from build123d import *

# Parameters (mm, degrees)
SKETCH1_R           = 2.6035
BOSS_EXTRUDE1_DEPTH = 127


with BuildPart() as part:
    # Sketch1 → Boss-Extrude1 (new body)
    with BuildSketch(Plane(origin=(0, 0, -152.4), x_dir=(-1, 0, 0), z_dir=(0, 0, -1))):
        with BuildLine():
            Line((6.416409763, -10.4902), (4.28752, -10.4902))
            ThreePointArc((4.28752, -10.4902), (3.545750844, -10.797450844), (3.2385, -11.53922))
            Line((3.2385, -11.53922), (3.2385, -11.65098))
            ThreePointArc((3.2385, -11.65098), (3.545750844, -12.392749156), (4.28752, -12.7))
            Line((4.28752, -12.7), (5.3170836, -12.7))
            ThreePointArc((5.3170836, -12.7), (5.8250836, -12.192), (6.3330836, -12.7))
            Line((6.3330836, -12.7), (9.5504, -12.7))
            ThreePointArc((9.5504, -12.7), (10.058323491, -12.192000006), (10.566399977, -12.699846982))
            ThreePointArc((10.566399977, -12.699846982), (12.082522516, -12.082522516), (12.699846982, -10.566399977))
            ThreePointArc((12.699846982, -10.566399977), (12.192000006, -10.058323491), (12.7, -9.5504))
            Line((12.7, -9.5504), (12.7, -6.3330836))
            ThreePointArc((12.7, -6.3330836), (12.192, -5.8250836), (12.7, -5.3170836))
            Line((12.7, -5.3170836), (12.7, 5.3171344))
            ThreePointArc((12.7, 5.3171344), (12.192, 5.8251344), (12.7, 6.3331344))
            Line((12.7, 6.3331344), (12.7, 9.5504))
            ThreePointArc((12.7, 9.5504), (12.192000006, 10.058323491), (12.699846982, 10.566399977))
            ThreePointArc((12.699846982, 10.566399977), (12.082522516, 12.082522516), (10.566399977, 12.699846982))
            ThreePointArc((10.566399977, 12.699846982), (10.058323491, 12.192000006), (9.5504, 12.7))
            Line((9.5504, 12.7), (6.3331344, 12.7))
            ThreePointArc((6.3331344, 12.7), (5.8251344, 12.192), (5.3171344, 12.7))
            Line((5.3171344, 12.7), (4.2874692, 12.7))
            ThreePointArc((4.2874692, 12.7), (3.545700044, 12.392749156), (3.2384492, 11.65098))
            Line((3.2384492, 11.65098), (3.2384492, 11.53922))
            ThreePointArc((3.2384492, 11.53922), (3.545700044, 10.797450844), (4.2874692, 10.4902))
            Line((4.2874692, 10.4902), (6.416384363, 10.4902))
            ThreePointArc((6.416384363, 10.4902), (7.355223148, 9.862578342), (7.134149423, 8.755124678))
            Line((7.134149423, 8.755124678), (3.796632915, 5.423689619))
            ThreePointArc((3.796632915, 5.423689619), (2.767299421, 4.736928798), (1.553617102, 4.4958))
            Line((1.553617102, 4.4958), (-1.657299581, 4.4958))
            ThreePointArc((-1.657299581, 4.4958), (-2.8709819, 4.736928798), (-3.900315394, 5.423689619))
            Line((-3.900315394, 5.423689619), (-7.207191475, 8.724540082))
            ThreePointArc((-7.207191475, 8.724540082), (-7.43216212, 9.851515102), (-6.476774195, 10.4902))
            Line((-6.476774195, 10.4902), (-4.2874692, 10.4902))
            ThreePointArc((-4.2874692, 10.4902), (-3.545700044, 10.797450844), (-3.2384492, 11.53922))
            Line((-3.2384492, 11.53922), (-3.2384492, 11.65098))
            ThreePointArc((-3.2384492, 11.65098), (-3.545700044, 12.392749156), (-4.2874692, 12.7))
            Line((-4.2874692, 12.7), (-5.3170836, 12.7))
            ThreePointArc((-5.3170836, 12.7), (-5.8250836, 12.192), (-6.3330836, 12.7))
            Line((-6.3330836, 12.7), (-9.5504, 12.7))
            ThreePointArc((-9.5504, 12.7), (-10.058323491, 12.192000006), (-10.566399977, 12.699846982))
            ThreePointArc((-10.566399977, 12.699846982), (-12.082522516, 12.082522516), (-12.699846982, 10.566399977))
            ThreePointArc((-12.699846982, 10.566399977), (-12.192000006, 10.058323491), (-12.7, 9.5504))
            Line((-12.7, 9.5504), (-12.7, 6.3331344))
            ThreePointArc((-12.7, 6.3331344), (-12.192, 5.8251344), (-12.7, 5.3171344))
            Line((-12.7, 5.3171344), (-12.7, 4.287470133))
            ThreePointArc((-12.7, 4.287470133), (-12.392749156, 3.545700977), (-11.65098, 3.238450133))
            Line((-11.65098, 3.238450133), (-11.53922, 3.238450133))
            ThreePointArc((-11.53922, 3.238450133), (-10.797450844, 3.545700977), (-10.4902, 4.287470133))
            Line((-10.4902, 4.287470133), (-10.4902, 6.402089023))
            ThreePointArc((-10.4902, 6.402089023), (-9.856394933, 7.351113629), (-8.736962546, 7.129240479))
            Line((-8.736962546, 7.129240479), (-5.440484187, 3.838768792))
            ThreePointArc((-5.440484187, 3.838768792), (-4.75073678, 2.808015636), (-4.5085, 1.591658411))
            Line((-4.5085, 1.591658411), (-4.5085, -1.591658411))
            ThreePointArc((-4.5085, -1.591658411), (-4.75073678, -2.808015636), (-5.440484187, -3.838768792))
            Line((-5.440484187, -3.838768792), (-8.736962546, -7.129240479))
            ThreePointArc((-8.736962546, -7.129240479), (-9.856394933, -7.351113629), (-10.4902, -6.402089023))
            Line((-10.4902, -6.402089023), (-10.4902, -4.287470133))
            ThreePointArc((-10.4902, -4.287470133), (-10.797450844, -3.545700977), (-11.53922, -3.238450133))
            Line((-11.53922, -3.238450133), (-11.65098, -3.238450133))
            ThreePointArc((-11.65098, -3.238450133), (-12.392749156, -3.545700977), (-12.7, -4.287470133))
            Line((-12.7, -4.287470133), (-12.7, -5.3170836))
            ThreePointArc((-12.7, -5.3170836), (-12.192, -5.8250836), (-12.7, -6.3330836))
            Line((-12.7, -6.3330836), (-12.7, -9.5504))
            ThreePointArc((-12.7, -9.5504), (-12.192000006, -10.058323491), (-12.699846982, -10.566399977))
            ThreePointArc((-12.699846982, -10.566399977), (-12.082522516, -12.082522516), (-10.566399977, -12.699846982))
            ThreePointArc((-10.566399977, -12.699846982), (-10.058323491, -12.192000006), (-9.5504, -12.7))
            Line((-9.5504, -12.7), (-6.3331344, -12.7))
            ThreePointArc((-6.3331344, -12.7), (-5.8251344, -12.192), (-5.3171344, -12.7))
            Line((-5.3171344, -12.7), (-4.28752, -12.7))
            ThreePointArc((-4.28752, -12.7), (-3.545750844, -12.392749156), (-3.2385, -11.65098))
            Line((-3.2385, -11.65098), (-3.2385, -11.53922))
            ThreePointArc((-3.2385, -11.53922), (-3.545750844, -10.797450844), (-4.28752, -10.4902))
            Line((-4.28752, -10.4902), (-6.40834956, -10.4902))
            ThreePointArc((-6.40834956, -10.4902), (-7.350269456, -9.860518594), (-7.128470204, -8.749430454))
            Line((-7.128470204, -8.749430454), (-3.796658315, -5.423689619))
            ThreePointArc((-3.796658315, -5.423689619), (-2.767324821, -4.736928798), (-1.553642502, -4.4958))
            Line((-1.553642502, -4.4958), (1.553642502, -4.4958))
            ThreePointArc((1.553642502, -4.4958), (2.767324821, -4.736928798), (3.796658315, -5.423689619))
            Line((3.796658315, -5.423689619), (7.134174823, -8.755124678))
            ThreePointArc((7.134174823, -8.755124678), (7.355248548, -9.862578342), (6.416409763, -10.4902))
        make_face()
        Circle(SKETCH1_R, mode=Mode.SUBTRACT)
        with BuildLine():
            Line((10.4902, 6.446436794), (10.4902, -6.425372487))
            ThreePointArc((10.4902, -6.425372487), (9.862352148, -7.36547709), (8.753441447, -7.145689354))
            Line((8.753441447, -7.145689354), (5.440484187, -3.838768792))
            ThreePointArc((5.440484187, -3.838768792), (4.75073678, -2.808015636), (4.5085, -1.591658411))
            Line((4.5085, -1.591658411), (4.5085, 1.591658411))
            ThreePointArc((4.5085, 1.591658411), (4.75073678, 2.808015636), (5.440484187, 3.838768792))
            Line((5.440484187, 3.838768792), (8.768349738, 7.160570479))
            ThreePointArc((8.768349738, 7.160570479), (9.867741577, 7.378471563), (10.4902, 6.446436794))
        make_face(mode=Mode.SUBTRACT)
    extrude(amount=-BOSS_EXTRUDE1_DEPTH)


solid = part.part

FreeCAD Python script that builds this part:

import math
import FreeCAD as App
import Part
import Sketcher

V = App.Vector
Q = App.Units.Quantity

doc = App.newDocument("Part")
body = doc.addObject("PartDesign::Body", "Body")

# Sketch on XY plane
sketch1 = doc.addObject("Sketcher::SketchObject", "Sketch")
body.addObject(sketch1)
sketch1.AttachmentSupport = (doc.XY_Plane, [""])
sketch1.MapMode = "FlatFace"
sketch1.AttachmentOffset = App.Placement(V(0, 0, -6 * 25.4), App.Rotation())
sketch1.addGeometry(Part.LineSegment(V(-6.41641, -10.4902, 0), V(-4.28752, -10.4902, 0)), False)
sketch1.addGeometry(Part.ArcOfCircle(Part.Circle(V(-4.28752, -11.53922, 0), V(0, 0, 1), 1.04902), math.radians(0), math.radians(90)), False)
sketch1.addGeometry(Part.LineSegment(V(-3.2385, -11.53922, 0), V(-3.2385, -11.65098, 0)), False)
sketch1.addGeometry(Part.ArcOfCircle(Part.Circle(V(-4.28752, -11.65098, 0), V(0, 0, 1), 1.04902), math.radians(-90), math.radians(0)), False)
sketch1.addGeometry(Part.LineSegment(V(-4.28752, -12.7, 0), V(-5.317084, -12.7, 0)), False)
sketch1.addGeometry(Part.ArcOfCircle(Part.Circle(V(-5.825084, -12.7, 0), V(0, 0, 1), 0.508), math.radians(0), math.radians(180)), False)
sketch1.addGeometry(Part.LineSegment(V(-6.333084, -12.7, 0), V(-9.5504, -12.7, 0)), False)
sketch1.addGeometry(Part.ArcOfCircle(Part.Circle(V(-10.0584, -12.7, 0), V(0, 0, 1), 0.508), math.radians(0), math.radians(179.982742)), False)
sketch1.addGeometry(Part.ArcOfCircle(Part.Circle(V(-10.5918, -10.5918, 0), V(0, 0, 1), 2.1082), math.radians(179.309672), math.radians(270.690328)), False)
sketch1.addGeometry(Part.ArcOfCircle(Part.Circle(V(-12.7, -10.0584, 0), V(0, 0, 1), 0.508), math.radians(-89.982742), math.radians(90)), False)
sketch1.addGeometry(Part.LineSegment(V(-12.7, -9.5504, 0), V(-12.7, -6.333084, 0)), False)
sketch1.addGeometry(Part.ArcOfCircle(Part.Circle(V(-12.7, -5.825084, 0), V(0, 0, 1), 0.508), math.radians(-90), math.radians(90)), False)
sketch1.addGeometry(Part.LineSegment(V(-12.7, -5.317084, 0), V(-12.7, 5.317134, 0)), False)
sketch1.addGeometry(Part.ArcOfCircle(Part.Circle(V(-12.7, 5.825134, 0), V(0, 0, 1), 0.508), math.radians(-90), math.radians(90)), False)
sketch1.addGeometry(Part.LineSegment(V(-12.7, 6.333134, 0), V(-12.7, 9.5504, 0)), False)
sketch1.addGeometry(Part.ArcOfCircle(Part.Circle(V(-12.7, 10.0584, 0), V(0, 0, 1), 0.508), math.radians(-90), math.radians(89.982742)), False)
sketch1.addGeometry(Part.ArcOfCircle(Part.Circle(V(-10.5918, 10.5918, 0), V(0, 0, 1), 2.1082), math.radians(89.309672), math.radians(180.690328)), False)
sketch1.addGeometry(Part.ArcOfCircle(Part.Circle(V(-10.0584, 12.7, 0), V(0, 0, 1), 0.508), math.radians(-179.982742), math.radians(0)), False)
sketch1.addGeometry(Part.LineSegment(V(-9.5504, 12.7, 0), V(-6.333134, 12.7, 0)), False)
sketch1.addGeometry(Part.ArcOfCircle(Part.Circle(V(-5.825134, 12.7, 0), V(0, 0, 1), 0.508), math.radians(180), math.radians(360)), False)
sketch1.addGeometry(Part.LineSegment(V(-5.317134, 12.7, 0), V(-4.287469, 12.7, 0)), False)
sketch1.addGeometry(Part.ArcOfCircle(Part.Circle(V(-4.287469, 11.65098, 0), V(0, 0, 1), 1.04902), math.radians(0), math.radians(90)), False)
sketch1.addGeometry(Part.LineSegment(V(-3.238449, 11.65098, 0), V(-3.238449, 11.53922, 0)), False)
sketch1.addGeometry(Part.ArcOfCircle(Part.Circle(V(-4.287469, 11.53922, 0), V(0, 0, 1), 1.04902), math.radians(-90), math.radians(0)), False)
sketch1.addGeometry(Part.LineSegment(V(-4.287469, 10.4902, 0), V(-6.416384, 10.4902, 0)), False)
sketch1.addGeometry(Part.ArcOfCircle(Part.Circle(V(-6.416384, 9.4742, 0), V(0, 0, 1), 1.016), math.radians(90), math.radians(225.052248)), False)
sketch1.addGeometry(Part.LineSegment(V(-7.134149, 8.755125, 0), V(-3.796633, 5.42369, 0)), False)
sketch1.addGeometry(Part.ArcOfCircle(Part.Circle(V(-1.553617, 7.6708, 0), V(0, 0, 1), 3.175), math.radians(-134.947752), math.radians(-90)), False)
sketch1.addGeometry(Part.LineSegment(V(-1.553617, 4.4958, 0), V(1.6573, 4.4958, 0)), False)
sketch1.addGeometry(Part.ArcOfCircle(Part.Circle(V(1.6573, 7.6708, 0), V(0, 0, 1), 3.175), math.radians(-90), math.radians(-45.052248)), False)
sketch1.addGeometry(Part.LineSegment(V(3.900315, 5.42369, 0), V(7.207191, 8.72454, 0)), False)
sketch1.addGeometry(Part.ArcOfCircle(Part.Circle(V(6.476774, 9.456291, 0), V(0, 0, 1), 1.033909), math.radians(-45.052248), math.radians(90)), False)
sketch1.addGeometry(Part.LineSegment(V(6.476774, 10.4902, 0), V(4.287469, 10.4902, 0)), False)
sketch1.addGeometry(Part.ArcOfCircle(Part.Circle(V(4.287469, 11.53922, 0), V(0, 0, 1), 1.04902), math.radians(180), math.radians(270)), False)
sketch1.addGeometry(Part.LineSegment(V(3.238449, 11.53922, 0), V(3.238449, 11.65098, 0)), False)
sketch1.addGeometry(Part.ArcOfCircle(Part.Circle(V(4.287469, 11.65098, 0), V(0, 0, 1), 1.04902), math.radians(90), math.radians(180)), False)
sketch1.addGeometry(Part.LineSegment(V(4.287469, 12.7, 0), V(5.317084, 12.7, 0)), False)
sketch1.addGeometry(Part.ArcOfCircle(Part.Circle(V(5.825084, 12.7, 0), V(0, 0, 1), 0.508), math.radians(180), math.radians(360)), False)
sketch1.addGeometry(Part.LineSegment(V(6.333084, 12.7, 0), V(9.5504, 12.7, 0)), False)
sketch1.addGeometry(Part.ArcOfCircle(Part.Circle(V(10.0584, 12.7, 0), V(0, 0, 1), 0.508), math.radians(180), math.radians(359.982742)), False)
sketch1.addGeometry(Part.ArcOfCircle(Part.Circle(V(10.5918, 10.5918, 0), V(0, 0, 1), 2.1082), math.radians(-0.690328), math.radians(90.690328)), False)
sketch1.addGeometry(Part.ArcOfCircle(Part.Circle(V(12.7, 10.0584, 0), V(0, 0, 1), 0.508), math.radians(90.017258), math.radians(270)), False)
sketch1.addGeometry(Part.LineSegment(V(12.7, 9.5504, 0), V(12.7, 6.333134, 0)), False)
sketch1.addGeometry(Part.ArcOfCircle(Part.Circle(V(12.7, 5.825134, 0), V(0, 0, 1), 0.508), math.radians(90), math.radians(270)), False)
sketch1.addGeometry(Part.LineSegment(V(12.7, 5.317134, 0), V(12.7, 4.28747, 0)), False)
sketch1.addGeometry(Part.ArcOfCircle(Part.Circle(V(11.65098, 4.28747, 0), V(0, 0, 1), 1.04902), math.radians(-90), math.radians(0)), False)
sketch1.addGeometry(Part.LineSegment(V(11.65098, 3.23845, 0), V(11.53922, 3.23845, 0)), False)
sketch1.addGeometry(Part.ArcOfCircle(Part.Circle(V(11.53922, 4.28747, 0), V(0, 0, 1), 1.04902), math.radians(180), math.radians(270)), False)
sketch1.addGeometry(Part.LineSegment(V(10.4902, 4.28747, 0), V(10.4902, 6.402089, 0)), False)
sketch1.addGeometry(Part.ArcOfCircle(Part.Circle(V(9.462789, 6.402089, 0), V(0, 0, 1), 1.027411), math.radians(0), math.radians(134.947752)), False)
sketch1.addGeometry(Part.LineSegment(V(8.736963, 7.12924, 0), V(5.440484, 3.838769, 0)), False)
sketch1.addGeometry(Part.ArcOfCircle(Part.Circle(V(7.6835, 1.591658, 0), V(0, 0, 1), 3.175), math.radians(134.947752), math.radians(180)), False)
sketch1.addGeometry(Part.LineSegment(V(4.5085, 1.591658, 0), V(4.5085, -1.591658, 0)), False)
sketch1.addGeometry(Part.ArcOfCircle(Part.Circle(V(7.6835, -1.591658, 0), V(0, 0, 1), 3.175), math.radians(180), math.radians(225.052248)), False)
sketch1.addGeometry(Part.LineSegment(V(5.440484, -3.838769, 0), V(8.736963, -7.12924, 0)), False)
sketch1.addGeometry(Part.ArcOfCircle(Part.Circle(V(9.462789, -6.402089, 0), V(0, 0, 1), 1.027411), math.radians(-134.947752), math.radians(0)), False)
sketch1.addGeometry(Part.LineSegment(V(10.4902, -6.402089, 0), V(10.4902, -4.28747, 0)), False)
sketch1.addGeometry(Part.ArcOfCircle(Part.Circle(V(11.53922, -4.28747, 0), V(0, 0, 1), 1.04902), math.radians(90), math.radians(180)), False)
sketch1.addGeometry(Part.LineSegment(V(11.53922, -3.23845, 0), V(11.65098, -3.23845, 0)), False)
sketch1.addGeometry(Part.ArcOfCircle(Part.Circle(V(11.65098, -4.28747, 0), V(0, 0, 1), 1.04902), math.radians(0), math.radians(90)), False)
sketch1.addGeometry(Part.LineSegment(V(12.7, -4.28747, 0), V(12.7, -5.317084, 0)), False)
sketch1.addGeometry(Part.ArcOfCircle(Part.Circle(V(12.7, -5.825084, 0), V(0, 0, 1), 0.508), math.radians(90), math.radians(270)), False)
sketch1.addGeometry(Part.LineSegment(V(12.7, -6.333084, 0), V(12.7, -9.5504, 0)), False)
sketch1.addGeometry(Part.ArcOfCircle(Part.Circle(V(12.7, -10.0584, 0), V(0, 0, 1), 0.508), math.radians(90), math.radians(269.982742)), False)
sketch1.addGeometry(Part.ArcOfCircle(Part.Circle(V(10.5918, -10.5918, 0), V(0, 0, 1), 2.1082), math.radians(-90.690328), math.radians(0.690328)), False)
sketch1.addGeometry(Part.ArcOfCircle(Part.Circle(V(10.0584, -12.7, 0), V(0, 0, 1), 0.508), math.radians(0.017258), math.radians(180)), False)
sketch1.addGeometry(Part.LineSegment(V(9.5504, -12.7, 0), V(6.333134, -12.7, 0)), False)
sketch1.addGeometry(Part.ArcOfCircle(Part.Circle(V(5.825134, -12.7, 0), V(0, 0, 1), 0.508), math.radians(0), math.radians(180)), False)
sketch1.addGeometry(Part.LineSegment(V(5.317134, -12.7, 0), V(4.28752, -12.7, 0)), False)
sketch1.addGeometry(Part.ArcOfCircle(Part.Circle(V(4.28752, -11.65098, 0), V(0, 0, 1), 1.04902), math.radians(180), math.radians(270)), False)
sketch1.addGeometry(Part.LineSegment(V(3.2385, -11.65098, 0), V(3.2385, -11.53922, 0)), False)
sketch1.addGeometry(Part.ArcOfCircle(Part.Circle(V(4.28752, -11.53922, 0), V(0, 0, 1), 1.04902), math.radians(90), math.radians(180)), False)
sketch1.addGeometry(Part.LineSegment(V(4.28752, -10.4902, 0), V(6.40835, -10.4902, 0)), False)
sketch1.addGeometry(Part.ArcOfCircle(Part.Circle(V(6.40835, -9.470866, 0), V(0, 0, 1), 1.019334), math.radians(-90), math.radians(45.052248)), False)
sketch1.addGeometry(Part.LineSegment(V(7.12847, -8.74943, 0), V(3.796658, -5.42369, 0)), False)
sketch1.addGeometry(Part.ArcOfCircle(Part.Circle(V(1.553643, -7.6708, 0), V(0, 0, 1), 3.175), math.radians(45.052248), math.radians(90)), False)
sketch1.addGeometry(Part.LineSegment(V(1.553643, -4.4958, 0), V(-1.553643, -4.4958, 0)), False)
sketch1.addGeometry(Part.ArcOfCircle(Part.Circle(V(-1.553643, -7.6708, 0), V(0, 0, 1), 3.175), math.radians(90), math.radians(134.947752)), False)
sketch1.addGeometry(Part.LineSegment(V(-3.796658, -5.42369, 0), V(-7.134175, -8.755125, 0)), False)
sketch1.addGeometry(Part.ArcOfCircle(Part.Circle(V(-6.41641, -9.4742, 0), V(0, 0, 1), 1.016), math.radians(134.947752), math.radians(270)), False)
sketch1.addGeometry(Part.Circle(V(0, 0, 0), V(0, 0, 1), 2.6035), False)
sketch1.addGeometry(Part.ArcOfCircle(Part.Circle(V(-9.481182, 6.446437, 0), V(0, 0, 1), 1.009018), math.radians(45.052248), math.radians(180)), False)
sketch1.addGeometry(Part.LineSegment(V(-10.4902, 6.446437, 0), V(-10.4902, -6.425372, 0)), False)
sketch1.addGeometry(Part.ArcOfCircle(Part.Circle(V(-9.472446, -6.425372, 0), V(0, 0, 1), 1.017754), math.radians(180), math.radians(314.947752)), False)
sketch1.addGeometry(Part.LineSegment(V(-8.753441, -7.145689, 0), V(-5.440484, -3.838769, 0)), False)
sketch1.addGeometry(Part.ArcOfCircle(Part.Circle(V(-7.6835, -1.591658, 0), V(0, 0, 1), 3.175), math.radians(-45.052248), math.radians(0)), False)
sketch1.addGeometry(Part.LineSegment(V(-4.5085, -1.591658, 0), V(-4.5085, 1.591658, 0)), False)
sketch1.addGeometry(Part.ArcOfCircle(Part.Circle(V(-7.6835, 1.591658, 0), V(0, 0, 1), 3.175), math.radians(0), math.radians(45.052248)), False)
sketch1.addGeometry(Part.LineSegment(V(-5.440484, 3.838769, 0), V(-8.76835, 7.16057, 0)), False)
sketch1.addConstraint(Sketcher.Constraint("Tangent", 0, 2, 1, 2))
sketch1.addConstraint(Sketcher.Constraint("Tangent", 1, 1, 2, 1))
sketch1.addConstraint(Sketcher.Constraint("Tangent", 2, 2, 3, 2))
sketch1.addConstraint(Sketcher.Constraint("Tangent", 3, 1, 4, 1))
sketch1.addConstraint(Sketcher.Constraint("Coincident", 4, 2, 5, 1))
sketch1.addConstraint(Sketcher.Constraint("Coincident", 5, 2, 6, 1))
sketch1.addConstraint(Sketcher.Constraint("Coincident", 6, 2, 7, 1))
sketch1.addConstraint(Sketcher.Constraint("Coincident", 7, 2, 8, 2))
sketch1.addConstraint(Sketcher.Constraint("Coincident", 8, 1, 9, 1))
sketch1.addConstraint(Sketcher.Constraint("Coincident", 9, 2, 10, 1))
sketch1.addConstraint(Sketcher.Constraint("Coincident", 10, 2, 11, 1))
sketch1.addConstraint(Sketcher.Constraint("Coincident", 11, 2, 12, 1))
sketch1.addConstraint(Sketcher.Constraint("Coincident", 12, 2, 13, 1))
sketch1.addConstraint(Sketcher.Constraint("Coincident", 13, 2, 14, 1))
sketch1.addConstraint(Sketcher.Constraint("Coincident", 14, 2, 15, 1))
sketch1.addConstraint(Sketcher.Constraint("Coincident", 15, 2, 16, 2))
sketch1.addConstraint(Sketcher.Constraint("Coincident", 16, 1, 17, 1))
sketch1.addConstraint(Sketcher.Constraint("Coincident", 17, 2, 18, 1))
sketch1.addConstraint(Sketcher.Constraint("Coincident", 18, 2, 19, 1))
sketch1.addConstraint(Sketcher.Constraint("Coincident", 19, 2, 20, 1))
sketch1.addConstraint(Sketcher.Constraint("Tangent", 20, 2, 21, 2))
sketch1.addConstraint(Sketcher.Constraint("Tangent", 21, 1, 22, 1))
sketch1.addConstraint(Sketcher.Constraint("Tangent", 22, 2, 23, 2))
sketch1.addConstraint(Sketcher.Constraint("Tangent", 23, 1, 24, 1))
sketch1.addConstraint(Sketcher.Constraint("Tangent", 24, 2, 25, 1))
sketch1.addConstraint(Sketcher.Constraint("Tangent", 25, 2, 26, 1))
sketch1.addConstraint(Sketcher.Constraint("Tangent", 26, 2, 27, 1))
sketch1.addConstraint(Sketcher.Constraint("Tangent", 27, 2, 28, 1))
sketch1.addConstraint(Sketcher.Constraint("Tangent", 28, 2, 29, 1))
sketch1.addConstraint(Sketcher.Constraint("Tangent", 29, 2, 30, 1))
sketch1.addConstraint(Sketcher.Constraint("Tangent", 30, 2, 31, 1))
sketch1.addConstraint(Sketcher.Constraint("Tangent", 31, 2, 32, 1))
sketch1.addConstraint(Sketcher.Constraint("Tangent", 32, 2, 33, 2))
sketch1.addConstraint(Sketcher.Constraint("Tangent", 33, 1, 34, 1))
sketch1.addConstraint(Sketcher.Constraint("Tangent", 34, 2, 35, 2))
sketch1.addConstraint(Sketcher.Constraint("Tangent", 35, 1, 36, 1))
sketch1.addConstraint(Sketcher.Constraint("Coincident", 36, 2, 37, 1))
sketch1.addConstraint(Sketcher.Constraint("Coincident", 37, 2, 38, 1))
sketch1.addConstraint(Sketcher.Constraint("Coincident", 38, 2, 39, 1))
sketch1.addConstraint(Sketcher.Constraint("Coincident", 39, 2, 40, 2))
sketch1.addConstraint(Sketcher.Constraint("Coincident", 40, 1, 41, 1))
sketch1.addConstraint(Sketcher.Constraint("Coincident", 41, 2, 42, 1))
sketch1.addConstraint(Sketcher.Constraint("Coincident", 42, 2, 43, 1))
sketch1.addConstraint(Sketcher.Constraint("Coincident", 43, 2, 44, 1))
sketch1.addConstraint(Sketcher.Constraint("Tangent", 44, 2, 45, 2))
sketch1.addConstraint(Sketcher.Constraint("Tangent", 45, 1, 46, 1))
sketch1.addConstraint(Sketcher.Constraint("Tangent", 46, 2, 47, 2))
sketch1.addConstraint(Sketcher.Constraint("Tangent", 47, 1, 48, 1))
sketch1.addConstraint(Sketcher.Constraint("Tangent", 48, 2, 49, 1))
sketch1.addConstraint(Sketcher.Constraint("Tangent", 49, 2, 50, 1))
sketch1.addConstraint(Sketcher.Constraint("Tangent", 50, 2, 51, 1))
sketch1.addConstraint(Sketcher.Constraint("Tangent", 51, 2, 52, 1))
sketch1.addConstraint(Sketcher.Constraint("Tangent", 52, 2, 53, 1))
sketch1.addConstraint(Sketcher.Constraint("Tangent", 53, 2, 54, 1))
sketch1.addConstraint(Sketcher.Constraint("Tangent", 54, 2, 55, 1))
sketch1.addConstraint(Sketcher.Constraint("Tangent", 55, 2, 56, 1))
sketch1.addConstraint(Sketcher.Constraint("Tangent", 56, 2, 57, 2))
sketch1.addConstraint(Sketcher.Constraint("Tangent", 57, 1, 58, 1))
sketch1.addConstraint(Sketcher.Constraint("Tangent", 58, 2, 59, 2))
sketch1.addConstraint(Sketcher.Constraint("Tangent", 59, 1, 60, 1))
sketch1.addConstraint(Sketcher.Constraint("Coincident", 60, 2, 61, 1))
sketch1.addConstraint(Sketcher.Constraint("Coincident", 61, 2, 62, 1))
sketch1.addConstraint(Sketcher.Constraint("Coincident", 62, 2, 63, 1))
sketch1.addConstraint(Sketcher.Constraint("Coincident", 63, 2, 64, 2))
sketch1.addConstraint(Sketcher.Constraint("Coincident", 64, 1, 65, 1))
sketch1.addConstraint(Sketcher.Constraint("Coincident", 65, 2, 66, 1))
sketch1.addConstraint(Sketcher.Constraint("Coincident", 66, 2, 67, 1))
sketch1.addConstraint(Sketcher.Constraint("Coincident", 67, 2, 68, 1))
sketch1.addConstraint(Sketcher.Constraint("Tangent", 68, 2, 69, 2))
sketch1.addConstraint(Sketcher.Constraint("Tangent", 69, 1, 70, 1))
sketch1.addConstraint(Sketcher.Constraint("Tangent", 70, 2, 71, 2))
sketch1.addConstraint(Sketcher.Constraint("Tangent", 71, 1, 72, 1))
sketch1.addConstraint(Sketcher.Constraint("Tangent", 72, 2, 73, 1))
sketch1.addConstraint(Sketcher.Constraint("Tangent", 73, 2, 74, 1))
sketch1.addConstraint(Sketcher.Constraint("Tangent", 74, 2, 75, 1))
sketch1.addConstraint(Sketcher.Constraint("Tangent", 75, 2, 76, 1))
sketch1.addConstraint(Sketcher.Constraint("Tangent", 76, 2, 77, 1))
sketch1.addConstraint(Sketcher.Constraint("Tangent", 77, 2, 78, 1))
sketch1.addConstraint(Sketcher.Constraint("Tangent", 78, 2, 79, 1))
sketch1.addConstraint(Sketcher.Constraint("Tangent", 79, 2, 0, 1))
sketch1.addConstraint(Sketcher.Constraint("Tangent", 81, 2, 82, 1))
sketch1.addConstraint(Sketcher.Constraint("Tangent", 82, 2, 83, 1))
sketch1.addConstraint(Sketcher.Constraint("Tangent", 83, 2, 84, 1))
sketch1.addConstraint(Sketcher.Constraint("Tangent", 84, 2, 85, 1))
sketch1.addConstraint(Sketcher.Constraint("Tangent", 85, 2, 86, 1))
sketch1.addConstraint(Sketcher.Constraint("Tangent", 86, 2, 87, 1))
sketch1.addConstraint(Sketcher.Constraint("Tangent", 87, 2, 88, 1))
sketch1.addConstraint(Sketcher.Constraint("Tangent", 88, 2, 81, 1))
sketch1.addConstraint(Sketcher.Constraint("Horizontal", 0))
sketch1.addConstraint(Sketcher.Constraint("Vertical", 2))
sketch1.addConstraint(Sketcher.Constraint("Horizontal", 4))
sketch1.addConstraint(Sketcher.Constraint("Horizontal", 6))
sketch1.addConstraint(Sketcher.Constraint("Vertical", 10))
sketch1.addConstraint(Sketcher.Constraint("Vertical", 12))
sketch1.addConstraint(Sketcher.Constraint("Vertical", 14))
sketch1.addConstraint(Sketcher.Constraint("Horizontal", 18))
sketch1.addConstraint(Sketcher.Constraint("Horizontal", 20))
sketch1.addConstraint(Sketcher.Constraint("Vertical", 22))
sketch1.addConstraint(Sketcher.Constraint("Horizontal", 24))
sketch1.addConstraint(Sketcher.Constraint("Horizontal", 28))
sketch1.addConstraint(Sketcher.Constraint("Horizontal", 32))
sketch1.addConstraint(Sketcher.Constraint("Vertical", 34))
sketch1.addConstraint(Sketcher.Constraint("Horizontal", 36))
sketch1.addConstraint(Sketcher.Constraint("Horizontal", 38))
sketch1.addConstraint(Sketcher.Constraint("Vertical", 42))
sketch1.addConstraint(Sketcher.Constraint("Vertical", 44))
sketch1.addConstraint(Sketcher.Constraint("Horizontal", 46))
sketch1.addConstraint(Sketcher.Constraint("Vertical", 48))
sketch1.addConstraint(Sketcher.Constraint("Vertical", 52))
sketch1.addConstraint(Sketcher.Constraint("Vertical", 56))
sketch1.addConstraint(Sketcher.Constraint("Horizontal", 58))
sketch1.addConstraint(Sketcher.Constraint("Vertical", 60))
sketch1.addConstraint(Sketcher.Constraint("Vertical", 62))
sketch1.addConstraint(Sketcher.Constraint("Horizontal", 66))
sketch1.addConstraint(Sketcher.Constraint("Horizontal", 68))
sketch1.addConstraint(Sketcher.Constraint("Vertical", 70))
sketch1.addConstraint(Sketcher.Constraint("Horizontal", 72))
sketch1.addConstraint(Sketcher.Constraint("Horizontal", 76))
sketch1.addConstraint(Sketcher.Constraint("Vertical", 82))
sketch1.addConstraint(Sketcher.Constraint("Vertical", 86))
sketch1.addConstraint(Sketcher.Constraint("Coincident", 80, 3, -1, 1))
sketch1.addConstraint(Sketcher.Constraint("Equal", 1, 3))
sketch1.addConstraint(Sketcher.Constraint("Equal", 5, 7))
sketch1.addConstraint(Sketcher.Constraint("Equal", 7, 9))
sketch1.addConstraint(Sketcher.Constraint("Equal", 9, 11))
sketch1.addConstraint(Sketcher.Constraint("Equal", 11, 13))
sketch1.addConstraint(Sketcher.Constraint("Equal", 13, 15))
sketch1.addConstraint(Sketcher.Constraint("Equal", 8, 16))
sketch1.addConstraint(Sketcher.Constraint("Equal", 15, 17))
sketch1.addConstraint(Sketcher.Constraint("Equal", 17, 19))
sketch1.addConstraint(Sketcher.Constraint("Equal", 3, 21))
sketch1.addConstraint(Sketcher.Constraint("Equal", 21, 23))
sketch1.addConstraint(Sketcher.Constraint("Equal", 27, 29))
sketch1.addConstraint(Sketcher.Constraint("Equal", 23, 33))
sketch1.addConstraint(Sketcher.Constraint("Equal", 33, 35))
sketch1.addConstraint(Sketcher.Constraint("Equal", 19, 37))
sketch1.addConstraint(Sketcher.Constraint("Equal", 37, 39))
sketch1.addConstraint(Sketcher.Constraint("Equal", 16, 40))
sketch1.addConstraint(Sketcher.Constraint("Equal", 39, 41))
sketch1.addConstraint(Sketcher.Constraint("Equal", 41, 43))
sketch1.addConstraint(Sketcher.Constraint("Equal", 35, 45))
sketch1.addConstraint(Sketcher.Constraint("Equal", 45, 47))
sketch1.addConstraint(Sketcher.Constraint("Equal", 29, 51))
sketch1.addConstraint(Sketcher.Constraint("Equal", 51, 53))
sketch1.addConstraint(Sketcher.Constraint("Equal", 49, 55))
sketch1.addConstraint(Sketcher.Constraint("Equal", 47, 57))
sketch1.addConstraint(Sketcher.Constraint("Equal", 57, 59))
sketch1.addConstraint(Sketcher.Constraint("Equal", 43, 61))
sketch1.addConstraint(Sketcher.Constraint("Equal", 61, 63))
sketch1.addConstraint(Sketcher.Constraint("Equal", 40, 64))
sketch1.addConstraint(Sketcher.Constraint("Equal", 63, 65))
sketch1.addConstraint(Sketcher.Constraint("Equal", 65, 67))
sketch1.addConstraint(Sketcher.Constraint("Equal", 59, 69))
sketch1.addConstraint(Sketcher.Constraint("Equal", 69, 71))
sketch1.addConstraint(Sketcher.Constraint("Equal", 53, 75))
sketch1.addConstraint(Sketcher.Constraint("Equal", 75, 77))
sketch1.addConstraint(Sketcher.Constraint("Equal", 25, 79))
sketch1.addConstraint(Sketcher.Constraint("Equal", 77, 85))
sketch1.addConstraint(Sketcher.Constraint("Equal", 85, 87))
sketch1.addConstraint(Sketcher.Constraint("Symmetric", 5, 3, 37, 3, -1, 1))
sketch1.addConstraint(Sketcher.Constraint("Symmetric", 7, 3, 39, 3, -1, 1))
sketch1.addConstraint(Sketcher.Constraint("Symmetric", 8, 3, 40, 3, -1, 1))
sketch1.addConstraint(Sketcher.Constraint("Symmetric", 9, 3, 41, 3, -1, 1))
sketch1.addConstraint(Sketcher.Constraint("Symmetric", 15, 3, 63, 3, -1, 1))
sketch1.addConstraint(Sketcher.Constraint("Symmetric", 16, 3, 64, 3, -1, 1))
sketch1.addConstraint(Sketcher.Constraint("Symmetric", 17, 3, 65, 3, -1, 1))
sketch1.addConstraint(Sketcher.Constraint("Symmetric", 19, 3, 67, 3, -1, 1))
sketch1.addConstraint(Sketcher.Constraint("Symmetric", 51, 3, 85, 3, -1, 1))
sketch1.addConstraint(Sketcher.Constraint("Symmetric", 53, 2, 87, 2, -1, 1))
sketch1.addConstraint(Sketcher.Constraint("Symmetric", 23, 3, 33, 3, -2))
sketch1.addConstraint(Sketcher.Constraint("Symmetric", 17, 3, 39, 3, -2))
sketch1.addConstraint(Sketcher.Constraint("Symmetric", 16, 3, 40, 3, -2))
sketch1.addConstraint(Sketcher.Constraint("Symmetric", 15, 3, 41, 3, -2))
sketch1.addConstraint(Sketcher.Constraint("Symmetric", 13, 3, 43, 3, -2))
sketch1.addConstraint(Sketcher.Constraint("Symmetric", 11, 3, 61, 3, -2))
sketch1.addConstraint(Sketcher.Constraint("Symmetric", 3, 3, 69, 3, -2))
sketch1.addConstraint(Sketcher.Constraint("Symmetric", 74, 2, 77, 2, -2))
sketch1.addConstraint(Sketcher.Constraint("Symmetric", 53, 2, 84, 2, -2))
sketch1.addConstraint(Sketcher.Constraint("Symmetric", 49, 3, 55, 3, -1))
sketch1.addConstraint(Sketcher.Constraint("Symmetric", 45, 3, 59, 3, -1))
sketch1.addConstraint(Sketcher.Constraint("Parallel", 30, 50))
sketch1.addConstraint(Sketcher.Constraint("Parallel", 26, 54))
sketch1.addConstraint(Sketcher.Constraint("Parallel", 54, 74))
sketch1.addConstraint(Sketcher.Constraint("Horizontal", 5, 3, 7, 3))
sketch1.addConstraint(Sketcher.Constraint("Horizontal", 17, 3, 19, 3))
sketch1.addConstraint(Sketcher.Constraint("Horizontal", 21, 3, 35, 3))
sketch1.addConstraint(Sketcher.Constraint("Horizontal", 1, 3, 71, 3))
sketch1.addConstraint(Sketcher.Constraint("Horizontal", 67, 3, 3, 1))
sketch1.addConstraint(Sketcher.Constraint("Horizontal", 4, 2, 5, 2))
sketch1.addConstraint(Sketcher.Constraint("Horizontal", 39, 3, 17, 2))
sketch1.addConstraint(Sketcher.Constraint("Horizontal", 18, 2, 19, 2))
sketch1.addConstraint(Sketcher.Constraint("Horizontal", 36, 2, 37, 2))
sketch1.addConstraint(Sketcher.Constraint("Horizontal", 6, 2, 65, 2))
sketch1.addConstraint(Sketcher.Constraint("Vertical", 9, 3, 11, 3))
sketch1.addConstraint(Sketcher.Constraint("Vertical", 11, 3, 13, 3))
sketch1.addConstraint(Sketcher.Constraint("Vertical", 15, 3, 9, 2))
sketch1.addConstraint(Sketcher.Constraint("Vertical", 10, 2, 11, 2))
sketch1.addConstraint(Sketcher.Constraint("Vertical", 12, 2, 13, 2))
sketch1.addConstraint(Sketcher.Constraint("Vertical", 63, 3, 41, 2))
sketch1.addConstraint(Sketcher.Constraint("Vertical", 42, 2, 43, 2))
sketch1.addConstraint(Sketcher.Constraint("Vertical", 60, 2, 61, 2))
sketch1.addConstraint(Sketcher.Constraint("Equal", 36, 68))
sketch1.addConstraint(Sketcher.Constraint("Equal", 58, 2))
sketch1.addConstraint(Sketcher.Constraint("Equal", 38, 10))
sketch1.addConstraint(Sketcher.Constraint("Equal", 66, 14))
sketch1.addConstraint(Sketcher.Constraint("Equal", 2, 22))
sketch1.addConstraint(Sketcher.Constraint("Equal", 20, 44))
sketch1.addConstraint(Sketcher.Constraint("Equal", 26, 78))
sketch1.addConstraint(Sketcher.Constraint("Radius", 5, Q("0.02 in")))
sketch1.addConstraint(Sketcher.Constraint("Radius", 25, Q("0.04 in")))
sketch1.addConstraint(Sketcher.Constraint("Diameter", 80, Q("0.205 in")))
sketch1.addConstraint(Sketcher.Constraint("Radius", 8, Q("0.083 in")))
sketch1.addConstraint(Sketcher.Constraint("Radius", 27, Q("0.125 in")))
sketch1.addConstraint(Sketcher.Constraint("DistanceY", 5, 3, -1, 1, Q("0.5 in")))
sketch1.addConstraint(Sketcher.Constraint("DistanceX", 9, 3, -1, 1, Q("0.5 in")))
sketch1.addConstraint(Sketcher.Constraint("Radius", 1, Q("0.0413 in")))
sketch1.addConstraint(Sketcher.Constraint("DistanceX", 46, 2, 46, 1, Q("0.0044 in")))
sketch1.addConstraint(Sketcher.Constraint("DistanceX", 7, 3, -1, 1, Q("0.396 in")))
sketch1.addConstraint(Sketcher.Constraint("DistanceX", 8, 3, -1, 1, Q("0.417 in")))
sketch1.addConstraint(Sketcher.Constraint("DistanceY", 8, 3, -1, 1, Q("0.417 in")))
sketch1.addConstraint(Sketcher.Constraint("DistanceY", 9, 3, -1, 1, Q("0.396 in")))
sketch1.addConstraint(Sketcher.Constraint("DistanceY", -1, 1, 27, 3, Q("0.302 in")))
sketch1.addConstraint(Sketcher.Constraint("DistanceX", 81, 2, -1, 1, Q("0.413 in")))
sketch1.addConstraint(Sketcher.Constraint("Radius", 31, Q("1.033909 mm")))
sketch1.addConstraint(Sketcher.Constraint("Radius", 49, Q("1.027411 mm")))
sketch1.addConstraint(Sketcher.Constraint("DistanceX", 1, 3, -1, 1, Q("0.1688 in")))
sketch1.addConstraint(Sketcher.Constraint("DistanceX", -1, 1, 51, 3, Q("0.3025 in")))
sketch1.addConstraint(Sketcher.Constraint("Radius", 73, Q("1.019334 mm")))
sketch1.addConstraint(Sketcher.Constraint("Radius", 81, Q("1.009018 mm")))
sketch1.addConstraint(Sketcher.Constraint("Radius", 83, Q("1.017754 mm")))
sketch1.addConstraint(Sketcher.Constraint("DistanceX", 0, 1, 0, 2, Q("2.12889 mm")))
sketch1.addConstraint(Sketcher.Constraint("DistanceY", 12, 1, 12, 2, Q("10.634218 mm")))
sketch1.addConstraint(Sketcher.Constraint("DistanceY", 48, 1, 48, 2, Q("2.114619 mm")))
sketch1.addConstraint(Sketcher.Constraint("DistanceY", 82, 2, 82, 1, Q("12.871809 mm")))
sketch1.addConstraint(Sketcher.Constraint("DistanceX", -1, 1, 29, 3, Q("1.6573 mm")))
sketch1.addConstraint(Sketcher.Constraint("Distance", 30, Q("4.67237 mm")))
sketch1.addConstraint(Sketcher.Constraint("DistanceX", 24, 2, 24, 1, Q("2.128915 mm")))
pad1 = doc.addObject("PartDesign::Pad", "Pad")
body.addObject(pad1)
pad1.Profile = sketch1
pad1.Length = Q("5 in")

doc.recompute()
